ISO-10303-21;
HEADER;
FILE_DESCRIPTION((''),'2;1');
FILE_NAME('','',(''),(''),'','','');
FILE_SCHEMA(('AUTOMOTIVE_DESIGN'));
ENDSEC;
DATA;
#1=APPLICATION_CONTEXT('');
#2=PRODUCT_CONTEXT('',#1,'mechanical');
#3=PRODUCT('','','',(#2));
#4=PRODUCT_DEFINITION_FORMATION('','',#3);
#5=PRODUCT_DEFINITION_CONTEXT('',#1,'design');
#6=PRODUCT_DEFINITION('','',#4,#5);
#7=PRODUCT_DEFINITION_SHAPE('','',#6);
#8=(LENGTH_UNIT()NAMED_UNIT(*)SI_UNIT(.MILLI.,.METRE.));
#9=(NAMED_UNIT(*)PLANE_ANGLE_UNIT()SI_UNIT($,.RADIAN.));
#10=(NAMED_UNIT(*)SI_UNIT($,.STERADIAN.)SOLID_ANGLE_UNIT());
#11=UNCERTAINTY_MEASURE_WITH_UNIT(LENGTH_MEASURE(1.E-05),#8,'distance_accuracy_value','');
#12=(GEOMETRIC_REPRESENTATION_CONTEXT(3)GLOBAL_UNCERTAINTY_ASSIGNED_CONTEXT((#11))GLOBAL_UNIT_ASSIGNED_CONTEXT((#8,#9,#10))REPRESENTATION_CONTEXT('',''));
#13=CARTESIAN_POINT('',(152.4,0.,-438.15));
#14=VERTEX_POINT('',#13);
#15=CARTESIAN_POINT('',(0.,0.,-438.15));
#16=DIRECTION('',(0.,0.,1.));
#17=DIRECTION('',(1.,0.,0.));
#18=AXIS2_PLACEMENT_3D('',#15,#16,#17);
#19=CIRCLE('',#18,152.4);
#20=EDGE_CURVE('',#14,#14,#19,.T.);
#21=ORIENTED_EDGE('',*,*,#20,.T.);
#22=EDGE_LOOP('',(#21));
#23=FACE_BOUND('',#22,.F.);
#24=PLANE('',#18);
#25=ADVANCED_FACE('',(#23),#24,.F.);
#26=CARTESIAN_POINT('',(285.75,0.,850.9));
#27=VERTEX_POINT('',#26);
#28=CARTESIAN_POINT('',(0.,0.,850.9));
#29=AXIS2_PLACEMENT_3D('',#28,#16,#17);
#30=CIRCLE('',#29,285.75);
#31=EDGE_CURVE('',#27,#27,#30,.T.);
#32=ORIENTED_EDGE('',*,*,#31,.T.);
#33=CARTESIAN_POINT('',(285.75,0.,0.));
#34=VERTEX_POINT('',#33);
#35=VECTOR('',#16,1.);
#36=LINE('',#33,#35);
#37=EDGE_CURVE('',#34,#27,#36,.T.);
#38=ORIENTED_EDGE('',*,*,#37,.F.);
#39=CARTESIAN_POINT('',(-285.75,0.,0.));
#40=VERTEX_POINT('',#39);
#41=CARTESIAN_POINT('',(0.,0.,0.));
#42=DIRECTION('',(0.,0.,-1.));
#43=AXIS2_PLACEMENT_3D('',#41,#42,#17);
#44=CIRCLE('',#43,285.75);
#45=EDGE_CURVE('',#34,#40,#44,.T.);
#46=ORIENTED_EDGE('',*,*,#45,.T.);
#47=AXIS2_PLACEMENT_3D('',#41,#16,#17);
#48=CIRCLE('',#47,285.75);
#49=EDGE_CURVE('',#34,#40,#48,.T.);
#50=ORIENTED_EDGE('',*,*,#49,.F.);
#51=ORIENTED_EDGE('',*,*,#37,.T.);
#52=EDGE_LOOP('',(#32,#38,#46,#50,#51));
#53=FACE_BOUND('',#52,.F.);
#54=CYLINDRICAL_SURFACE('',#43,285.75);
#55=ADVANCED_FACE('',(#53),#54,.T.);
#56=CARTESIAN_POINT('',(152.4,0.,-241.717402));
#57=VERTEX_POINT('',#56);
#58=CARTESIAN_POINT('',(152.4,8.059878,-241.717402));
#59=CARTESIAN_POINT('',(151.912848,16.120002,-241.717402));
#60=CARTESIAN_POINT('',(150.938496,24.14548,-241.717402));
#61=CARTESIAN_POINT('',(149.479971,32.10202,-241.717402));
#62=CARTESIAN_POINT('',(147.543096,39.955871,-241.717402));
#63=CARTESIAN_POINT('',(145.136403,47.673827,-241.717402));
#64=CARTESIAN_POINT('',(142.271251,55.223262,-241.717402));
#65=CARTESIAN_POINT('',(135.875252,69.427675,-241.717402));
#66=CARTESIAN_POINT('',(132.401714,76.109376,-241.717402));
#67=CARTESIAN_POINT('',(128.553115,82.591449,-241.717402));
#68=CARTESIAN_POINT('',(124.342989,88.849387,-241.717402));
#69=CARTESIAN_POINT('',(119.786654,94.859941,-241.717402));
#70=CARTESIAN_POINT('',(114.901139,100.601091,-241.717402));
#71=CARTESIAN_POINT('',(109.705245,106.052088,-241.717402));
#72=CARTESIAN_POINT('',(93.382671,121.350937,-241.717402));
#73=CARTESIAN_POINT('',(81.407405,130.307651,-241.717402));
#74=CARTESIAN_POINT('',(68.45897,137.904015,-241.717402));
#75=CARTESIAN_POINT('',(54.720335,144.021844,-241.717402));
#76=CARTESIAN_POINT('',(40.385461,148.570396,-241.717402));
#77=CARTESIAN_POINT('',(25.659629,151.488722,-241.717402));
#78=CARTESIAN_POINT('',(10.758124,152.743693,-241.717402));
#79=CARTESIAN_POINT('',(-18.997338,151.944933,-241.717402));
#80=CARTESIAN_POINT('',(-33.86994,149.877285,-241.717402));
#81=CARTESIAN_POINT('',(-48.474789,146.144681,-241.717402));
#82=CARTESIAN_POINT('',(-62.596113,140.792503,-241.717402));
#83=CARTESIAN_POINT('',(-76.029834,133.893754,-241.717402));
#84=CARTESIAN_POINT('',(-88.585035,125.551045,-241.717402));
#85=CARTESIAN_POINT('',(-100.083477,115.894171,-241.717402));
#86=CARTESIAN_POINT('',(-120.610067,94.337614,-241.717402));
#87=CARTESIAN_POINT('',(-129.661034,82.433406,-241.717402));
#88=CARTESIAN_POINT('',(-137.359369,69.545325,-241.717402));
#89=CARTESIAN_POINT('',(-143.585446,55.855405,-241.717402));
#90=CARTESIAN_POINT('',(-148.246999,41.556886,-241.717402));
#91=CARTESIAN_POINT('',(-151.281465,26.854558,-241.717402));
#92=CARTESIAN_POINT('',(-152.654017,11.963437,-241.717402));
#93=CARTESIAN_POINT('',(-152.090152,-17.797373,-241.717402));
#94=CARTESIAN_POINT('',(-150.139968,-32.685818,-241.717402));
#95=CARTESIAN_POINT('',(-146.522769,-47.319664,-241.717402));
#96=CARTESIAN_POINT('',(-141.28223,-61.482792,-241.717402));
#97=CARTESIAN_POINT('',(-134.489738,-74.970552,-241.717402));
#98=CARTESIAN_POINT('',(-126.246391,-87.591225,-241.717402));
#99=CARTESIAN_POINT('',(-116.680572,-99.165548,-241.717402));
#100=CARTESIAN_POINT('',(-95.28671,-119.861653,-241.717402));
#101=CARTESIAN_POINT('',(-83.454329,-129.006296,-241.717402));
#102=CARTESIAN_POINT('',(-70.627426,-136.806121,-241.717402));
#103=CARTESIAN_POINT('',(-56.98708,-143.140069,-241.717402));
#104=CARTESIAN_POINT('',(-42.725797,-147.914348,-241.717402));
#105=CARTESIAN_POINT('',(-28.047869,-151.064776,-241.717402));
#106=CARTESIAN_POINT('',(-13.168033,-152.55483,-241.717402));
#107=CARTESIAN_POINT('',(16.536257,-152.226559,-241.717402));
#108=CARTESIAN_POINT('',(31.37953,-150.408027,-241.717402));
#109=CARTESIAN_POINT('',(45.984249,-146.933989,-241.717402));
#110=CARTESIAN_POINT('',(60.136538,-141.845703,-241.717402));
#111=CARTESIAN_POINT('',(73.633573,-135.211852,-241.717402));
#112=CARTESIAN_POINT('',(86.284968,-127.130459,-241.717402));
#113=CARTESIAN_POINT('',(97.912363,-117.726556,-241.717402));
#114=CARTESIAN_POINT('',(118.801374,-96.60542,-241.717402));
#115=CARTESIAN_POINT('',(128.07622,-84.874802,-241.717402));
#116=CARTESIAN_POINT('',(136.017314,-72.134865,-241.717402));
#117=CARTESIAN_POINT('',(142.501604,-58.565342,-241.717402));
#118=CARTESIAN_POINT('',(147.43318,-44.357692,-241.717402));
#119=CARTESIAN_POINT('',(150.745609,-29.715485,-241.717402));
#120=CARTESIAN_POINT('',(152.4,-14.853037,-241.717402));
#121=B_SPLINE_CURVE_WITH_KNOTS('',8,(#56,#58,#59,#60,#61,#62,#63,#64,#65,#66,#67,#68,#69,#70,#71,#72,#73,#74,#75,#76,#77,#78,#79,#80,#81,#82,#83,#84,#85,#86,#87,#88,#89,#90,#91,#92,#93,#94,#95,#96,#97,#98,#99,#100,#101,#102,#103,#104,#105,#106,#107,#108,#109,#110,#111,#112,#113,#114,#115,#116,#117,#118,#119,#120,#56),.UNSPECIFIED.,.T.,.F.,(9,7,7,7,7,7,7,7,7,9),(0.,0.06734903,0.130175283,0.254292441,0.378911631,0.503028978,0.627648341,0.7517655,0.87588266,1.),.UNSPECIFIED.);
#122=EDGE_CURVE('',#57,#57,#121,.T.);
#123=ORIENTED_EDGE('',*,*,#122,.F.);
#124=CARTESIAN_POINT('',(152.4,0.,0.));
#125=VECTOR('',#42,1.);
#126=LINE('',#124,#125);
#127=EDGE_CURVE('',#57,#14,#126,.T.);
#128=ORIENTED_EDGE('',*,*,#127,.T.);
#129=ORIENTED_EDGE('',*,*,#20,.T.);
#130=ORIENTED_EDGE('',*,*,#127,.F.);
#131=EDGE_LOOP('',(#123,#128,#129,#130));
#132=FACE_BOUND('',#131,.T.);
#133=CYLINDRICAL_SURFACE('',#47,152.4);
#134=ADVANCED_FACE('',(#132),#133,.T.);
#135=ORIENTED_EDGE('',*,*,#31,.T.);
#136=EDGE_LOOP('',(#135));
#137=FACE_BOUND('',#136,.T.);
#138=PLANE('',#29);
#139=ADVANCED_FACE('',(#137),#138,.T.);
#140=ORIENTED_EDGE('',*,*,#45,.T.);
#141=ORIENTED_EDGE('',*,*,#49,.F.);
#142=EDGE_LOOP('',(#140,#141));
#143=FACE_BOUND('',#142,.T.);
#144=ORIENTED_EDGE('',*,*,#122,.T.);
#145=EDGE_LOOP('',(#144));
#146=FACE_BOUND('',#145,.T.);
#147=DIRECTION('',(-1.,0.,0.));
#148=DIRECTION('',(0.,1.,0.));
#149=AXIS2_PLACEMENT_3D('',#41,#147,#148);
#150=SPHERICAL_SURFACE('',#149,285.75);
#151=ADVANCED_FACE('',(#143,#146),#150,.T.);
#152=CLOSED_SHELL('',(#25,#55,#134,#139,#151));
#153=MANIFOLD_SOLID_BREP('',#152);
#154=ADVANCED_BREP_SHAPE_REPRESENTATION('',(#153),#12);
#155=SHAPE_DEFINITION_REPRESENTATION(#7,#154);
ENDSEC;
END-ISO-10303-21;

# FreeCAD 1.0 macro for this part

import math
import FreeCAD as App
import Part
import Sketcher

V = App.Vector
Q = App.Units.Quantity

doc = App.newDocument("Part")
params = doc.addObject("Spreadsheet::Sheet", "Params")
for row, (alias, value) in enumerate([
    ("sketch1_radius", "11.25 in"),
    ("revolution_angle", "180 deg"),
    ("sketch2_diameter", "12 in"),
    ("pad1_length", "17.25 in"),
    ("sketch3_diameter", "22.5 in"),
    ("pad2_length", "33.5 in"),
], start=1):
    params.set(f"A{row}", alias)
    params.set(f"B{row}", "=" + value)
    params.setAlias(f"B{row}", alias)

body = doc.addObject("PartDesign::Body", "Body")

# Sketch on XY plane
sketch1 = doc.addObject("Sketcher::SketchObject", "Sketch")
body.addObject(sketch1)
sketch1.AttachmentSupport = (doc.XY_Plane, [""])
sketch1.MapMode = "FlatFace"
sketch1.addGeometry([
    Part.ArcOfCircle(Part.Circle(V(0, 0, 0), V(0, 0, 1), 286), math.radians(0), math.radians(180)),
    Part.LineSegment(V(-286, 0, 0), V(286, 0, 0)),
], False)
sketch1.addConstraint([
    Sketcher.Constraint("Coincident", 0, 1, 1, 2),
    Sketcher.Constraint("Coincident", 1, 1, 0, 2),
    Sketcher.Constraint("Horizontal", 1),
    Sketcher.Constraint("Coincident", 0, 3, -1, 1),
    Sketcher.Constraint("PointOnObject", 0, 1, -1),
    Sketcher.Constraint("Radius", 0, Q("11.25 in")),
])
sketch1.setExpression("Constraints[5]", "Params.sketch1_radius")
revolution = doc.addObject("PartDesign::Revolution", "Revolution")
body.addObject(revolution)
revolution.Profile = sketch1
revolution.ReferenceAxis = (sketch1, ["H_Axis"])
revolution.setExpression("Angle", "Params.revolution_angle")
revolution.Reversed = True

# Sketch on XY plane
sketch2 = doc.addObject("Sketcher::SketchObject", "Sketch001")
body.addObject(sketch2)
sketch2.AttachmentSupport = (doc.XY_Plane, [""])
sketch2.MapMode = "FlatFace"
sketch2.addGeometry(Part.Circle(V(0, 0, 0), V(0, 0, 1), 152), False)
sketch2.addConstraint([
    Sketcher.Constraint("Coincident", 0, 3, -1, 1),
    Sketcher.Constraint("Diameter", 0, Q("12 in")),
])
sketch2.setExpression("Constraints[1]", "Params.sketch2_diameter")
pad1 = doc.addObject("PartDesign::Pad", "Pad")
body.addObject(pad1)
pad1.Profile = sketch2
pad1.setExpression("Length", "Params.pad1_length")
pad1.Reversed = True

# Sketch on XY plane
sketch3 = doc.addObject("Sketcher::SketchObject", "Sketch002")
body.addObject(sketch3)
sketch3.AttachmentSupport = (doc.XY_Plane, [""])
sketch3.MapMode = "FlatFace"
sketch3.addGeometry(Part.Circle(V(0, 0, 0), V(0, 0, 1), 286), False)
sketch3.addConstraint([
    Sketcher.Constraint("Coincident", 0, 3, -1, 1),
    Sketcher.Constraint("Diameter", 0, Q("22.5 in")),
])
sketch3.setExpression("Constraints[1]", "Params.sketch3_diameter")
pad2 = doc.addObject("PartDesign::Pad", "Pad001")
body.addObject(pad2)
pad2.Profile = sketch3
pad2.setExpression("Length", "Params.pad2_length")

doc.recompute()
